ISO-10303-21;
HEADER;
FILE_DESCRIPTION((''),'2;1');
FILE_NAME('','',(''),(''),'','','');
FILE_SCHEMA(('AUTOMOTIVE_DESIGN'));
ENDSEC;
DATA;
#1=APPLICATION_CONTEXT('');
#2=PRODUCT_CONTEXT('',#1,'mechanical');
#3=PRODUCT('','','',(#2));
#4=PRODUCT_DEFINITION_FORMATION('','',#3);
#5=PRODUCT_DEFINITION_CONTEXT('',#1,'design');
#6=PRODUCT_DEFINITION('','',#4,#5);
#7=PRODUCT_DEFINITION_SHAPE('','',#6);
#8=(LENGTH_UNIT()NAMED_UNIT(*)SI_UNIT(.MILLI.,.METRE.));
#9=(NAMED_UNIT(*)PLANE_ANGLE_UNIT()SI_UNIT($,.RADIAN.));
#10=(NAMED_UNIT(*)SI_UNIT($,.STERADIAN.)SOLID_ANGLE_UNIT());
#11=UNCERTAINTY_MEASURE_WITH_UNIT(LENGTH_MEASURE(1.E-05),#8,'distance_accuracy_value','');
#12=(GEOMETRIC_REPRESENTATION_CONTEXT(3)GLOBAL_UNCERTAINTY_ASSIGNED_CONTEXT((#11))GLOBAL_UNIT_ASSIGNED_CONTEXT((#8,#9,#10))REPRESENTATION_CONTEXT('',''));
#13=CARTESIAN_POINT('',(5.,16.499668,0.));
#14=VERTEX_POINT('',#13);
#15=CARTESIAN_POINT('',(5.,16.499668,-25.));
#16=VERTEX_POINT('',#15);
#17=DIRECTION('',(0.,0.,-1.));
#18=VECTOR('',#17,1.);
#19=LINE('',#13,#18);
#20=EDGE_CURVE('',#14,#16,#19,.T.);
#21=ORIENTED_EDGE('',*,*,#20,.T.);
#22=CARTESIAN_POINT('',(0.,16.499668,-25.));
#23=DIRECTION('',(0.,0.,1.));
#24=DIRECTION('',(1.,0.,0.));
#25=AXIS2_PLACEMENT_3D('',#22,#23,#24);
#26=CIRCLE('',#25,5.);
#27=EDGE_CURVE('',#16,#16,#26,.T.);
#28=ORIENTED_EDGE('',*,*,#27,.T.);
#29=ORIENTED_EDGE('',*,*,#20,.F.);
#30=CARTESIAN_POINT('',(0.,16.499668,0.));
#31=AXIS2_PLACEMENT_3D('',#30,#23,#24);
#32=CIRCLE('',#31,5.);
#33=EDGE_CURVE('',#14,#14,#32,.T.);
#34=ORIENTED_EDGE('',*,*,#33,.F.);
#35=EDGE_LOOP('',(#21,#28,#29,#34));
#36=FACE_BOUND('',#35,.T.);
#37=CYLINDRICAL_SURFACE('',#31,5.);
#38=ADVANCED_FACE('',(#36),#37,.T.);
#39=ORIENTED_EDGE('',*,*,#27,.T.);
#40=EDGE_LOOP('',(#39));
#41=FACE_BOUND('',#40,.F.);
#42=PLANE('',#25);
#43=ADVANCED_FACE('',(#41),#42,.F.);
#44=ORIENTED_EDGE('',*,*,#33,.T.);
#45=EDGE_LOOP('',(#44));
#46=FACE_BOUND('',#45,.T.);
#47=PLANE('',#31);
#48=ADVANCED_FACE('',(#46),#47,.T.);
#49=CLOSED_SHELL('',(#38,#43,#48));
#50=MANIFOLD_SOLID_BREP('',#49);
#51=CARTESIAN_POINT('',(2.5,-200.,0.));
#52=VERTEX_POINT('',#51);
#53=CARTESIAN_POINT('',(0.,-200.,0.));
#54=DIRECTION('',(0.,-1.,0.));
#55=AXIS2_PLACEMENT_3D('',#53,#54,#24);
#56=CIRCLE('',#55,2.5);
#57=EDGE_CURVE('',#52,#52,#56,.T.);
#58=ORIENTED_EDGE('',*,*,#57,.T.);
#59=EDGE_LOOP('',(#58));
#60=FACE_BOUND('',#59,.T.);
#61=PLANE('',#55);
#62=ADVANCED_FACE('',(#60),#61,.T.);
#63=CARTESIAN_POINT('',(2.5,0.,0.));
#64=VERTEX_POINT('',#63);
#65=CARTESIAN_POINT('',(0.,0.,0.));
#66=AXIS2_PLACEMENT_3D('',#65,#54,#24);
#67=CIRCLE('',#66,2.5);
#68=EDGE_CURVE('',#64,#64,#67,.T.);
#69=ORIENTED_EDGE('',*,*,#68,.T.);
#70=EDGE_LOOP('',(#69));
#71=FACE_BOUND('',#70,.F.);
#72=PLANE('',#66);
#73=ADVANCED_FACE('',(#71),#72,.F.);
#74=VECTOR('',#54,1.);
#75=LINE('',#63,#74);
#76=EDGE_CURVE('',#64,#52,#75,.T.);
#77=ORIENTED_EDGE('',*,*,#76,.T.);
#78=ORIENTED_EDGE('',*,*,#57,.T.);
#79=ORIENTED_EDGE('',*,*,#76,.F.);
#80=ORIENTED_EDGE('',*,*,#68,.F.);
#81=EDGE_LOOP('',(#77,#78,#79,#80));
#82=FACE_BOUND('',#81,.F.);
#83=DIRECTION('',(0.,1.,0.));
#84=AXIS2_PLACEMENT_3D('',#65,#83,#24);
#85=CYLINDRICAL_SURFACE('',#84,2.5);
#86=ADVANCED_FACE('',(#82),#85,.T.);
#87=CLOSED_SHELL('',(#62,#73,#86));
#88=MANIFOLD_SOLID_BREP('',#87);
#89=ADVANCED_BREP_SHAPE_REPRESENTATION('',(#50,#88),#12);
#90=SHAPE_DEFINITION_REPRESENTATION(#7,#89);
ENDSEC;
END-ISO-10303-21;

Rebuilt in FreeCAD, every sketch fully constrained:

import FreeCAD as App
import Part
import Sketcher
from FreeCAD import Vector
Q = App.Units.Quantity

doc = App.newDocument("Part")
params = doc.addObject("Spreadsheet::Sheet", "Params")
for row, (alias, value) in enumerate([
    ("sketch1_diameter", "5 mm"),
    ("pad1_length", "200 mm"),
    ("sketch2_diameter", "10 mm"),
    ("pad2_length", "25 mm"),
], start=1):
    params.set(f"A{row}", alias)
    params.set(f"B{row}", "=" + value)
    params.setAlias(f"B{row}", alias)

body = doc.addObject("PartDesign::Body", "Body")

sketch1 = body.newObject("Sketcher::SketchObject", "Sketch")
sketch1.AttachmentSupport = (doc.getObject("XZ_Plane"), [""])
sketch1.MapMode = "FlatFace"
sketch1.addGeometry(Part.Circle(Vector(0, 0, 0), Vector(0, 0, 1), 2.5), False)
sketch1.addConstraint([
    Sketcher.Constraint("Coincident", 0, 3, -1, 1),
    Sketcher.Constraint("Diameter", 0, Q("5 mm")),
])
sketch1.setExpression("Constraints[1]", "Params.sketch1_diameter")
pad1 = body.newObject("PartDesign::Pad", "Pad")
pad1.Profile = sketch1
pad1.setExpression("Length", "Params.pad1_length")
body2 = doc.addObject("PartDesign::Body", "Body001")

sketch2 = body2.newObject("Sketcher::SketchObject", "Sketch001")
sketch2.AttachmentSupport = (doc.getObject("XY_Plane001"), [""])
sketch2.MapMode = "FlatFace"
sketch2.addGeometry(Part.Circle(Vector(0, 16.499668, 0), Vector(0, 0, 1), 5), False)
sketch2.addConstraint([
    Sketcher.Constraint("PointOnObject", 0, 3, -2),
    Sketcher.Constraint("Diameter", 0, Q("10 mm")),
    Sketcher.Constraint("DistanceY", -1, 1, 0, 3, Q("16.499668 mm")),
])
sketch2.setExpression("Constraints[1]", "Params.sketch2_diameter")
pad2 = body2.newObject("PartDesign::Pad", "Pad001")
pad2.Profile = sketch2
pad2.setExpression("Length", "Params.pad2_length")
pad2.Reversed = True

doc.recompute()
